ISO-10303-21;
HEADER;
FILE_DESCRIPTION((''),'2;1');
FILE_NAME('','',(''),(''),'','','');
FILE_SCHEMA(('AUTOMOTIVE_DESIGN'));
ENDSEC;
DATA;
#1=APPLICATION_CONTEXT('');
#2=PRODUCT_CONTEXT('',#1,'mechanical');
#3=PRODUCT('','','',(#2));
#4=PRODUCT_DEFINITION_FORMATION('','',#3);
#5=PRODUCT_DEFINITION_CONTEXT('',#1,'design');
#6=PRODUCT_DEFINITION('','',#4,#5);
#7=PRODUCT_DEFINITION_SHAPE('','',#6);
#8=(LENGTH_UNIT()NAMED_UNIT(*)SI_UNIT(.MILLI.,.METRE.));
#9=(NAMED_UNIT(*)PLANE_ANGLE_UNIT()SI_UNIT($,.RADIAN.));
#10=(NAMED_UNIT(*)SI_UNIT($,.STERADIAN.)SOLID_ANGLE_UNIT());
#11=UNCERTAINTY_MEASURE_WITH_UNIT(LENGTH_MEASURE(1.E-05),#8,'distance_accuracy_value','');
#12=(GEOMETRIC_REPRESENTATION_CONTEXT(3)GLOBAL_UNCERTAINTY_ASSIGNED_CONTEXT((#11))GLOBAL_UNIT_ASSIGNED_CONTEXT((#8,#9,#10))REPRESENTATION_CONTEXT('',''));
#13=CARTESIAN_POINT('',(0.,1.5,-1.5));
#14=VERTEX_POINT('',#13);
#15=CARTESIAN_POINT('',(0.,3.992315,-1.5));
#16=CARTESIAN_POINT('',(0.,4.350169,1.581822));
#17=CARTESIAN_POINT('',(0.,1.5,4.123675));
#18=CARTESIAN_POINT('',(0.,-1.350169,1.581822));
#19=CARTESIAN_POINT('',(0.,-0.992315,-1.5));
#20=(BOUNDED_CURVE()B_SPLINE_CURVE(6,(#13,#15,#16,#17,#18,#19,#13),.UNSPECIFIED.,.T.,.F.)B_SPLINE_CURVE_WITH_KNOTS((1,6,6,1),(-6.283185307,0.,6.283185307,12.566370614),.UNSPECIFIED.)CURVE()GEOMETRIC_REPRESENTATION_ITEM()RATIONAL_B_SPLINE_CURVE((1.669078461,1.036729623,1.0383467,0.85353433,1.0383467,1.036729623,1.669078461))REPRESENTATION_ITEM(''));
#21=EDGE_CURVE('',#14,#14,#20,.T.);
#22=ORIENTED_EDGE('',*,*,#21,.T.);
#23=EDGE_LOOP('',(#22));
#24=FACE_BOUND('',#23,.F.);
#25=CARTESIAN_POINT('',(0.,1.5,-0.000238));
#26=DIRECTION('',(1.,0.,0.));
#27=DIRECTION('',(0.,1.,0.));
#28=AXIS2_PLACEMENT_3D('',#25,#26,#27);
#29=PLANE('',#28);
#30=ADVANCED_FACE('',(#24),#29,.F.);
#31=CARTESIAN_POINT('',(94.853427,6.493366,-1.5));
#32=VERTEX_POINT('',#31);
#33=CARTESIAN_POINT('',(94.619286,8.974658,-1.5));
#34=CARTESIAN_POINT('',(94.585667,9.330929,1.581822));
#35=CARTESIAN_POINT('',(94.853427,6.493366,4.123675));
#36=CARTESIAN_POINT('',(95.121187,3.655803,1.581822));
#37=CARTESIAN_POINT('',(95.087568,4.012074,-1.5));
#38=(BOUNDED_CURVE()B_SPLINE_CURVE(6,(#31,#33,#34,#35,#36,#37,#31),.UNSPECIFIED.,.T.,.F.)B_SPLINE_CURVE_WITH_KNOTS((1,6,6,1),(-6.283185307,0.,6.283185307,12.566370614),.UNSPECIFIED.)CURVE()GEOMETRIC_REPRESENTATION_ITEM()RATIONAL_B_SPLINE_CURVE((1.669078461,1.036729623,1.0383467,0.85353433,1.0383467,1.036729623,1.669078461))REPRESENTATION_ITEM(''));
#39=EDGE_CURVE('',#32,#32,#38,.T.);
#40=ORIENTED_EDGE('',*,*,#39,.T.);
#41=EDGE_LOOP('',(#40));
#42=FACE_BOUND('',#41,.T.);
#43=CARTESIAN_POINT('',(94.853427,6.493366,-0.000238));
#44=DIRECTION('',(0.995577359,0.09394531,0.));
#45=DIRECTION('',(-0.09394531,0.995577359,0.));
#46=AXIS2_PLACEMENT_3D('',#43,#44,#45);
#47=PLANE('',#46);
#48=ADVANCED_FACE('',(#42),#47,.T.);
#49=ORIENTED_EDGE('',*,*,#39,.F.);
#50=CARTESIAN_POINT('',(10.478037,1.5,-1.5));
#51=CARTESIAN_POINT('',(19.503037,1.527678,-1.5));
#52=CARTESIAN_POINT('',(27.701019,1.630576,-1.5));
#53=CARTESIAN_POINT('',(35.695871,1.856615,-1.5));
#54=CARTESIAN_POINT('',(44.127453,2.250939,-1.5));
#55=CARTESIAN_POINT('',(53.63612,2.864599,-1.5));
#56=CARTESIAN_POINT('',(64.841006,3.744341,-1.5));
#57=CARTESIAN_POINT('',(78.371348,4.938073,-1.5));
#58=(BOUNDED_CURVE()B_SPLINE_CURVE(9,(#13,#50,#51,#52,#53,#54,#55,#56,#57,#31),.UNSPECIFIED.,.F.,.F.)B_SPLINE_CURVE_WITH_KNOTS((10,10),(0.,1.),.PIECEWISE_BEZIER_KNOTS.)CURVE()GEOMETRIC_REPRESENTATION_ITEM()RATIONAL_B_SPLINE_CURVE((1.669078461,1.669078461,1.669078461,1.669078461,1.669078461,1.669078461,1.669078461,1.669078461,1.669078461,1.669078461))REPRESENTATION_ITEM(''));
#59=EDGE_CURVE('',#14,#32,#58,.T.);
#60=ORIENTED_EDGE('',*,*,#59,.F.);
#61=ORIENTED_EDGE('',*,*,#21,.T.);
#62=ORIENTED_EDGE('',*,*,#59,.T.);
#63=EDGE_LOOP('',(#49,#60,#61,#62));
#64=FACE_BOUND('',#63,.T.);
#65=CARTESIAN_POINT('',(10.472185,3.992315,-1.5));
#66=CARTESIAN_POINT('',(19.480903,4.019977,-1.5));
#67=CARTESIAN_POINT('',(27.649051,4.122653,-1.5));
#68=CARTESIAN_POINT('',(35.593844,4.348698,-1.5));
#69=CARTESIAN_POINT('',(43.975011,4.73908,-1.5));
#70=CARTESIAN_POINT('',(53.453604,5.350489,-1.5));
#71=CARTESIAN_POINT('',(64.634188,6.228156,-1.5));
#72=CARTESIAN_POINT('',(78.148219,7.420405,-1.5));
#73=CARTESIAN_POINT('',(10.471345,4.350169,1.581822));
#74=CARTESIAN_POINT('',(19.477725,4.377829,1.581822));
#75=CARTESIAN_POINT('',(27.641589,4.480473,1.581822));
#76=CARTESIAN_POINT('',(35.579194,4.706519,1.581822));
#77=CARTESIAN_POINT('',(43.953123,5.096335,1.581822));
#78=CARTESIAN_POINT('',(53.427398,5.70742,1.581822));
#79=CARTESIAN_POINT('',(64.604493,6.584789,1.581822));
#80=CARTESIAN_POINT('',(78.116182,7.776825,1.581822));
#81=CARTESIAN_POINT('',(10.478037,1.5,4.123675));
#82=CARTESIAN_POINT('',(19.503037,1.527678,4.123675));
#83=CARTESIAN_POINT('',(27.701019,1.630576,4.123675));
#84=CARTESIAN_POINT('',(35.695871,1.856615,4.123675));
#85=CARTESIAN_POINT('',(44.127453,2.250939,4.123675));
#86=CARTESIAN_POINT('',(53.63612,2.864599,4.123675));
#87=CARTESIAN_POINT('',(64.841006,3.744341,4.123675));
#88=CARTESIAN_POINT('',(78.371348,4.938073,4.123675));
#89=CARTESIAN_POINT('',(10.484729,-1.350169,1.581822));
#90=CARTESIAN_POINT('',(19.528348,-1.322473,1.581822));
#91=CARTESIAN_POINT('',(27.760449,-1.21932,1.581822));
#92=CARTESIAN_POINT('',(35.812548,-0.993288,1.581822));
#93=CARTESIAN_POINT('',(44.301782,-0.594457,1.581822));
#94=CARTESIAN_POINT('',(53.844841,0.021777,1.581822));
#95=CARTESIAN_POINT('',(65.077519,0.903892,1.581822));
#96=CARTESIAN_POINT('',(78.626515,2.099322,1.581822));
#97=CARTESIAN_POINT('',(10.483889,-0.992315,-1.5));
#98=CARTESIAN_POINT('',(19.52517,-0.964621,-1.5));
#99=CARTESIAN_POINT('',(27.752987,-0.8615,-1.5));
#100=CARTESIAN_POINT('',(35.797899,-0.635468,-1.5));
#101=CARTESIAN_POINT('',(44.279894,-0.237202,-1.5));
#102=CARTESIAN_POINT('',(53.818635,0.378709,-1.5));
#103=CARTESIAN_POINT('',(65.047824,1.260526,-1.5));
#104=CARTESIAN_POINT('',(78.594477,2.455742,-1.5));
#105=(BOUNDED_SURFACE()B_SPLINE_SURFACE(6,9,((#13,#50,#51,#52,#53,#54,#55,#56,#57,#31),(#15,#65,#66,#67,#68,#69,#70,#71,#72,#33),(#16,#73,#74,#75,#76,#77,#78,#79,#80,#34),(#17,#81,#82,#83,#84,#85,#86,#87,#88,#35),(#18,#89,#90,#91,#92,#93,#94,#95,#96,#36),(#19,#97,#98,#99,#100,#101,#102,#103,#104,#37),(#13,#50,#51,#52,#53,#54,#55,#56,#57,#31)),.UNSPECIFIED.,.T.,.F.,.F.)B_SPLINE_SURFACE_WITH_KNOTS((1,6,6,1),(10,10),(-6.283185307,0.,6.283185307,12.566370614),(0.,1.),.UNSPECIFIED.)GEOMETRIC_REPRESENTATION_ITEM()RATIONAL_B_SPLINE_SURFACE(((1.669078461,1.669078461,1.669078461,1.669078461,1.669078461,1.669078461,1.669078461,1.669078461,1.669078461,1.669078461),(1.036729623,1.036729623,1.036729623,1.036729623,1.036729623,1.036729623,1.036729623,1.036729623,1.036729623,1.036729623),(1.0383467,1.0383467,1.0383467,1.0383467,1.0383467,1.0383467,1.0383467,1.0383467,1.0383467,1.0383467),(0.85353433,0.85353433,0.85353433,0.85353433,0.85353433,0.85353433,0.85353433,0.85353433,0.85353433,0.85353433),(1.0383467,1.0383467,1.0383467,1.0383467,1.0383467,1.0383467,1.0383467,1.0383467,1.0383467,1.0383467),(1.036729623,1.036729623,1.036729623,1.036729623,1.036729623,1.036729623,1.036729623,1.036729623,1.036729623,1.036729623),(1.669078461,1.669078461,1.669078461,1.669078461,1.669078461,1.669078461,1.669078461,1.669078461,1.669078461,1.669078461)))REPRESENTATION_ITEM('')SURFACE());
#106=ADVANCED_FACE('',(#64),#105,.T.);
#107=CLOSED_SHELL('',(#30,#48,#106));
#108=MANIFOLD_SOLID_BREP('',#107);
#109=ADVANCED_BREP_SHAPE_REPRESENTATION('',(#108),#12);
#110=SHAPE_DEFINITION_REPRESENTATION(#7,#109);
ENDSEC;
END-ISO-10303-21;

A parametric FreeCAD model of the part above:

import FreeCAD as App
import Part
import Sketcher

V = App.Vector
Q = App.Units.Quantity

doc = App.newDocument("Part")
body = doc.addObject("PartDesign::Body", "Body")

# Sketch on YZ plane
sketch1 = body.newObject("Sketcher::SketchObject", "Sketch")
sketch1.AttachmentSupport = (doc.getObject("YZ_Plane"), [""])
sketch1.MapMode = "FlatFace"
sketch1.addGeometry(Part.Circle(V(1.5, 0, 0), V(0, 0, 1), 1.5), False)
sketch1.addConstraint(Sketcher.Constraint("PointOnObject", 0, 3, -1))
sketch1.addConstraint(Sketcher.Constraint("Diameter", 0, Q("3 mm")))
sketch1.addConstraint(Sketcher.Constraint("DistanceX", -1, 1, 0, 3, Q("1.5 mm")))

# Sketch on XY plane
sketch2 = body.newObject("Sketcher::SketchObject", "Sketch001")
sketch2.AttachmentSupport = (doc.getObject("XY_Plane"), [""])
sketch2.MapMode = "FlatFace"
sketch2.addGeometry(Part.BSplineCurve([V(0, 0, 0), V(31.444678, 0, 0), V(45.528224, 0.332246, 0), V(94.994345, 5, 0)], [4, 4], [0, 1], False, 3, [1, 1, 1, 1], False), False)
sketch2.addConstraint(Sketcher.Constraint("Block", 0))
doc.recompute()

additivepipe = body.newObject("PartDesign::AdditivePipe", "AdditivePipe")
additivepipe.Profile = sketch1
additivepipe.Spine = (sketch2, ["Edge1"])

doc.recompute()
